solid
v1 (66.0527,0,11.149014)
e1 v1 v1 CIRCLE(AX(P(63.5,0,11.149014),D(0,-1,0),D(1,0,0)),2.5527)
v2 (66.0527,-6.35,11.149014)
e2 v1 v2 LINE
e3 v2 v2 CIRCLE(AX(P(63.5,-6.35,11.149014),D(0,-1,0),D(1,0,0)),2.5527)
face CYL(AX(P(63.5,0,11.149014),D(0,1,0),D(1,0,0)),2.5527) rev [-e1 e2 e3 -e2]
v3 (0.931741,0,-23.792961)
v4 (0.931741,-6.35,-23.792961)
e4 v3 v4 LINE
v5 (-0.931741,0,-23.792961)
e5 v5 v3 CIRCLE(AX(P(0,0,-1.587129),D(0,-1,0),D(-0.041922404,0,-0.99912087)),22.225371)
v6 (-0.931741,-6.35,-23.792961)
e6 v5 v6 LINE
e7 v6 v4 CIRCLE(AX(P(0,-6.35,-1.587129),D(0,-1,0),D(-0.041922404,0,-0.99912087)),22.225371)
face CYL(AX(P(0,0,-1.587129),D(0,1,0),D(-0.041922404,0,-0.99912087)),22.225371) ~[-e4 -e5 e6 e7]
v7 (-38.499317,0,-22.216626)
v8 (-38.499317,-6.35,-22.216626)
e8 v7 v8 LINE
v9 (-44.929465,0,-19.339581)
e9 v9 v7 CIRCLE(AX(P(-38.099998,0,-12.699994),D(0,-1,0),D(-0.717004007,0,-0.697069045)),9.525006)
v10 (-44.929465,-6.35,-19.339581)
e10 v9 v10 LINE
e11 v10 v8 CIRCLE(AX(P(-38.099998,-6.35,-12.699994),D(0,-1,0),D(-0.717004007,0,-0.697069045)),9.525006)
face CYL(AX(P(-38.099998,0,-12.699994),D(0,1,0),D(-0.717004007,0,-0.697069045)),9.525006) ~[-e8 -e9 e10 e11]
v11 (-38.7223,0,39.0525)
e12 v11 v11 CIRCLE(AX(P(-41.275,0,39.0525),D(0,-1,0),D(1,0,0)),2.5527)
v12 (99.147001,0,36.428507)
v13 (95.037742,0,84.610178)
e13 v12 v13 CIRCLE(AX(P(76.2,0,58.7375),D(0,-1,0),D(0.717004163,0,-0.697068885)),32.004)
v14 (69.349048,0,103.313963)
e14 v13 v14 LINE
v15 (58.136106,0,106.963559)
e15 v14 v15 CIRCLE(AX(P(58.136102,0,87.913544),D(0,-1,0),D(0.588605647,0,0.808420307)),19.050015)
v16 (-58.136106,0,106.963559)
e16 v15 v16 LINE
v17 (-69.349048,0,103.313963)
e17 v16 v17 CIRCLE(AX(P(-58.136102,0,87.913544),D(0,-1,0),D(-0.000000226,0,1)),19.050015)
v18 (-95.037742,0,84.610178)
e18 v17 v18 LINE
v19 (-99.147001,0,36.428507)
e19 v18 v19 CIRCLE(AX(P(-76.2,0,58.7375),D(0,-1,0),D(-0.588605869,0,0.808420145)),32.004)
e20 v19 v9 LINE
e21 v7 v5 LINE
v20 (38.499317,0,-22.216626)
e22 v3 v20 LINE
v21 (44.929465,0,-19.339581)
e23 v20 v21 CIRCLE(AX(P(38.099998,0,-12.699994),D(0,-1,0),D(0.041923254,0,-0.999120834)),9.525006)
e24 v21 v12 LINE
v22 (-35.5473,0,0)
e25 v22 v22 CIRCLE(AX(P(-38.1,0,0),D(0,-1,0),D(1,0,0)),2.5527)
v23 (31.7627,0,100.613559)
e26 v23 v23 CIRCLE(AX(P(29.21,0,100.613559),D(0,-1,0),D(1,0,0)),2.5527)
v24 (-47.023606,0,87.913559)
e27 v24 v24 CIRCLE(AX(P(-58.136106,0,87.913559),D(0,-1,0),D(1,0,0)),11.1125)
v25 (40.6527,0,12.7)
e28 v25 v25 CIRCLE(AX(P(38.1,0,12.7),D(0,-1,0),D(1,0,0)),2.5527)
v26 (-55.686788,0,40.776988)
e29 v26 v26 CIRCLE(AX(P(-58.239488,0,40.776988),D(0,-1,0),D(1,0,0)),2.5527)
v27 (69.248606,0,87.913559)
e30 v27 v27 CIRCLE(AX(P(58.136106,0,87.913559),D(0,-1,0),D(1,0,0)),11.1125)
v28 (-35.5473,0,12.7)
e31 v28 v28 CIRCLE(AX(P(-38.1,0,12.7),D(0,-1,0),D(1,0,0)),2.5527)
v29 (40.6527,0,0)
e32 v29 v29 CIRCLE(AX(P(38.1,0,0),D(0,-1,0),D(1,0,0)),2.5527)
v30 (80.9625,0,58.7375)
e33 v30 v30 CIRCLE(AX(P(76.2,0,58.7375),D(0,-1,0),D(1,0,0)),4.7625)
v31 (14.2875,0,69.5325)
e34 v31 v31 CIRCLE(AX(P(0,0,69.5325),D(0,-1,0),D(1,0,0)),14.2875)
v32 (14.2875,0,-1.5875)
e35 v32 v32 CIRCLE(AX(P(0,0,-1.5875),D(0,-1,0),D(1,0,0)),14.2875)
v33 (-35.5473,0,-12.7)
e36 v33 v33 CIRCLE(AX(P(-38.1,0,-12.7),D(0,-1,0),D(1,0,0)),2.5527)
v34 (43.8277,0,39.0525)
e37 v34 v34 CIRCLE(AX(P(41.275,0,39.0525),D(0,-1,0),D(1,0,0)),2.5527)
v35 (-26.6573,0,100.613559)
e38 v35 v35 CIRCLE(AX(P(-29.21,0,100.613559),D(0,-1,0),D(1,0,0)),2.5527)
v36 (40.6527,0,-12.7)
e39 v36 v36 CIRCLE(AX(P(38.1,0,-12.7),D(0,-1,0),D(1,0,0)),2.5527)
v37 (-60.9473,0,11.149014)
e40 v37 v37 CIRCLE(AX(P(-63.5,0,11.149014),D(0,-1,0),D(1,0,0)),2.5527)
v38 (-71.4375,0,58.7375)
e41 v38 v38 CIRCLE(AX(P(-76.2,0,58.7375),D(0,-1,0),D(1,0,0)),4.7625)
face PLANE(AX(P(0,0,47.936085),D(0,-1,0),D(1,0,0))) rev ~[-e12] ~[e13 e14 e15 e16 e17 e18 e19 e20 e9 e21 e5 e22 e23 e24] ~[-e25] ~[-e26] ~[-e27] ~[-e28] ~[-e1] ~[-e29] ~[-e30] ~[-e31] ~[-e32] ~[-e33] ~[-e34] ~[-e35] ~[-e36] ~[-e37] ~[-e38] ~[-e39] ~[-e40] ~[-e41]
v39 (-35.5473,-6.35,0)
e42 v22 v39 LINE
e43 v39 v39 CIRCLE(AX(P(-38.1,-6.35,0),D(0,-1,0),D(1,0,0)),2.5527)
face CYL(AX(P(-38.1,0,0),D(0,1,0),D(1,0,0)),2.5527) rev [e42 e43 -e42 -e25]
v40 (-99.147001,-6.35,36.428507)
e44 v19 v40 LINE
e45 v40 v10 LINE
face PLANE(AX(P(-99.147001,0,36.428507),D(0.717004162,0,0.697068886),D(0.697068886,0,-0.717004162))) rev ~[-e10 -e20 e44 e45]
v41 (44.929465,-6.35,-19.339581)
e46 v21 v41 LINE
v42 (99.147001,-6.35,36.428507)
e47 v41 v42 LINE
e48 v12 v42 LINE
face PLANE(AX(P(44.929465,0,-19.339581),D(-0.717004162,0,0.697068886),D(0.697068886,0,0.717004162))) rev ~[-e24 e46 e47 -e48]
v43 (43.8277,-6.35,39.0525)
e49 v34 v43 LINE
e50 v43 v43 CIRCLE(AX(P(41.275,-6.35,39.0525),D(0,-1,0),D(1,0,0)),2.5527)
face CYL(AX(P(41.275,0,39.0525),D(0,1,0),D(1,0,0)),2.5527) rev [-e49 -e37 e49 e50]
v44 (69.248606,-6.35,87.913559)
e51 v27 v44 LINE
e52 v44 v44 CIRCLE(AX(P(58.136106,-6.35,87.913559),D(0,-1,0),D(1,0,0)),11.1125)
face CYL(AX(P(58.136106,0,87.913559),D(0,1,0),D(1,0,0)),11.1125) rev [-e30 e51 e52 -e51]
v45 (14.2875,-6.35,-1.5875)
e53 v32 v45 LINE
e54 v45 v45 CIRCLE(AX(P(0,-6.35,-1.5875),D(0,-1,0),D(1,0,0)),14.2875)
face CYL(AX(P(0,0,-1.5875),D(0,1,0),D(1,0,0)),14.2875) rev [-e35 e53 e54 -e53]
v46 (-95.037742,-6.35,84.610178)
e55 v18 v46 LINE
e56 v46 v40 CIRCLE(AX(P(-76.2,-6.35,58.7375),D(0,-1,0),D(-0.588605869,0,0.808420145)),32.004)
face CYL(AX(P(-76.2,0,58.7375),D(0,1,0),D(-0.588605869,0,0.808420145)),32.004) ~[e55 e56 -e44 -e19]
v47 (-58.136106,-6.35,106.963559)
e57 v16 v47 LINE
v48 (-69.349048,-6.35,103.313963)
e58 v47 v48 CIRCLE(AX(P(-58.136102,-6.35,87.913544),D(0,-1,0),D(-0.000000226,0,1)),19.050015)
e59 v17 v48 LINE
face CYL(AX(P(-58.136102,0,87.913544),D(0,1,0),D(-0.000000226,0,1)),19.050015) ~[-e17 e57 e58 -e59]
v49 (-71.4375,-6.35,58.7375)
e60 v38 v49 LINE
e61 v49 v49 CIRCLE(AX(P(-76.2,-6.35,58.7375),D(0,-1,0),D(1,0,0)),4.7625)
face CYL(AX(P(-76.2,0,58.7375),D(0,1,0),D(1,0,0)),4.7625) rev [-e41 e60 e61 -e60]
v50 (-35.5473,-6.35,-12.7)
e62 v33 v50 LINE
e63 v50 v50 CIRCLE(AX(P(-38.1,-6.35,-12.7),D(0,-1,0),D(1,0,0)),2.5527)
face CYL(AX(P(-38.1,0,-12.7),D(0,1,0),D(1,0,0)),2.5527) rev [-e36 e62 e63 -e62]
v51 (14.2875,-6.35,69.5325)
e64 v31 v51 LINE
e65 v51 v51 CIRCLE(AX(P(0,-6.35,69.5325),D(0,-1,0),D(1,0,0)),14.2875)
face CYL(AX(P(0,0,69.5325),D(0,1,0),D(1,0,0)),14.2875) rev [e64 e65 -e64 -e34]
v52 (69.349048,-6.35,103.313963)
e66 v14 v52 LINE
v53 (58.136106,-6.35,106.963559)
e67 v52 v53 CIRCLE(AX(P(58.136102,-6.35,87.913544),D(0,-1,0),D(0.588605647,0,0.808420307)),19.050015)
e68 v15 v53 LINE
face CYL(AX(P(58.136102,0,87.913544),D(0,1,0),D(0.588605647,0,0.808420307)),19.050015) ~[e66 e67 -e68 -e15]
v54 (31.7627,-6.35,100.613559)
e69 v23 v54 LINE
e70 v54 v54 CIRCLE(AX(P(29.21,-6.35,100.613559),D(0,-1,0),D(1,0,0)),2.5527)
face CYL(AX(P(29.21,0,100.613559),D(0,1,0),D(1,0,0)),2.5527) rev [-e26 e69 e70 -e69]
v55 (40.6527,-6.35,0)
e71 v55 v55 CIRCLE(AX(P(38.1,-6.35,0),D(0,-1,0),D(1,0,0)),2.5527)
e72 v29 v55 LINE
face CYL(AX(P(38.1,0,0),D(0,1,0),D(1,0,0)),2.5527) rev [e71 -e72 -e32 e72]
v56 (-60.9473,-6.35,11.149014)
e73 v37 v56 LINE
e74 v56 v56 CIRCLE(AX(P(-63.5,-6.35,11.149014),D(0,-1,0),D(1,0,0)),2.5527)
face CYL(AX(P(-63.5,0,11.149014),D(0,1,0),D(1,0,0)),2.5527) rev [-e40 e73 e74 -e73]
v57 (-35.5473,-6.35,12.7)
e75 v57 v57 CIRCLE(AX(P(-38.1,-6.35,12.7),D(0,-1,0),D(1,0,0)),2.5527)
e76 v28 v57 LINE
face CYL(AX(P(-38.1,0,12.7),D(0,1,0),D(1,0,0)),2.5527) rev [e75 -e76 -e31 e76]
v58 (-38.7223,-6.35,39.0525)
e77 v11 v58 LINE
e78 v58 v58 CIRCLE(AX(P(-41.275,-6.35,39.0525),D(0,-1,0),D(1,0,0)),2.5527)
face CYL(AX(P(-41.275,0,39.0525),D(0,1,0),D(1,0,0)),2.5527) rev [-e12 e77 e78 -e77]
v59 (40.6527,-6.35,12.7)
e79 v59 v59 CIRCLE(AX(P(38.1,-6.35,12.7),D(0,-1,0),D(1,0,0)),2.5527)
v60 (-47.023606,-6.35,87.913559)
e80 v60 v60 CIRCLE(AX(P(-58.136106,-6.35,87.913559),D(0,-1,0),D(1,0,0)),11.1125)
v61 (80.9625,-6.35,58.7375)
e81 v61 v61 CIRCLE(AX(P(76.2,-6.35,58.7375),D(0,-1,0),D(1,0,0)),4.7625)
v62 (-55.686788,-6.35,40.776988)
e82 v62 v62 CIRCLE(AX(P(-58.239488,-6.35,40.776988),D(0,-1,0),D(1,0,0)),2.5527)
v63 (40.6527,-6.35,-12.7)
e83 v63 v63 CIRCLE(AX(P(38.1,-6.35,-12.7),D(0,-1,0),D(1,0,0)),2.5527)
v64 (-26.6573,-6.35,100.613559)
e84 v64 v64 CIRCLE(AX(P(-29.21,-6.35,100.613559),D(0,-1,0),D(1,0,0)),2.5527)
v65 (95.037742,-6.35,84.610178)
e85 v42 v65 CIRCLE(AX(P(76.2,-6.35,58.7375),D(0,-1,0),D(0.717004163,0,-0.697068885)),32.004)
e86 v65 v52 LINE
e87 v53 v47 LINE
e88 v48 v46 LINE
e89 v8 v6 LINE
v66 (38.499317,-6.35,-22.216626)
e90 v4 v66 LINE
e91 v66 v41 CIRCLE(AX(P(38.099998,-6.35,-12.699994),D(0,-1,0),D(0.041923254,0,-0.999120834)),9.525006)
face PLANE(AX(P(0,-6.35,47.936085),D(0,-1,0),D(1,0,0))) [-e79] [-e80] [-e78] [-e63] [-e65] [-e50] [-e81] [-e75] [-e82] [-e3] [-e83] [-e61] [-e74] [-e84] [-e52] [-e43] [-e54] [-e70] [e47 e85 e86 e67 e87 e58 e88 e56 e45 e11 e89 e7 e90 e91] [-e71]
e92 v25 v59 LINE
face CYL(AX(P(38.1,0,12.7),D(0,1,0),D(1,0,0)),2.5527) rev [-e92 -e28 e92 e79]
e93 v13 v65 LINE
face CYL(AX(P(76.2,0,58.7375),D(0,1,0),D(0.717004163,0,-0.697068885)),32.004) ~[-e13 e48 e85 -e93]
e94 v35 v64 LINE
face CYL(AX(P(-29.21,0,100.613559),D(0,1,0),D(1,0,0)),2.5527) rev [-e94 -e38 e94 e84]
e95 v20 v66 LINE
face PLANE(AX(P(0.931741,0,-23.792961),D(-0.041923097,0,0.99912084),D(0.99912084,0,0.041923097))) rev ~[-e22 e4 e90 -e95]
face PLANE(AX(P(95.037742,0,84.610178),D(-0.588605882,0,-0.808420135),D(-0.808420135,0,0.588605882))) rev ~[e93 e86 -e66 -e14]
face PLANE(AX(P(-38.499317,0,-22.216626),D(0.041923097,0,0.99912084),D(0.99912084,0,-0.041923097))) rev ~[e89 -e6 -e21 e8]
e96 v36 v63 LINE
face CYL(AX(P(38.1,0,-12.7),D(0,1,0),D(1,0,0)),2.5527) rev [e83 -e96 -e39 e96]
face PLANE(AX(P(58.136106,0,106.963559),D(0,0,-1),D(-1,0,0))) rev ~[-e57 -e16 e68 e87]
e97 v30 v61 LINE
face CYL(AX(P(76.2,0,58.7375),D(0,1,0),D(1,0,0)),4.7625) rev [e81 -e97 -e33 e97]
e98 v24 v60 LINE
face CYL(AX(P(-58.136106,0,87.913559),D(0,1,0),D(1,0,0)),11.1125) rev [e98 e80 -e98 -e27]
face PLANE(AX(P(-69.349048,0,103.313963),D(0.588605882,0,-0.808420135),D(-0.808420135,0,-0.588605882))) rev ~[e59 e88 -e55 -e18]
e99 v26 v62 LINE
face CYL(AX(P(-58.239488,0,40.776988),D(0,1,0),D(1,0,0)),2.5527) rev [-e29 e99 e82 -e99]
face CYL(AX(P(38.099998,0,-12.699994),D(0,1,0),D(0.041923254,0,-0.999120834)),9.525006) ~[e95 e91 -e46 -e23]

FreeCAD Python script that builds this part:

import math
import FreeCAD as App
import Part
import Sketcher
from FreeCAD import Vector
Q = App.Units.Quantity

doc = App.newDocument("Part")
body = doc.addObject("PartDesign::Body", "Body")

# Sketch on XZ plane
sketch1 = body.newObject("Sketcher::SketchObject", "Sketch")
sketch1.AttachmentSupport = (doc.getObject("XZ_Plane"), [""])
sketch1.MapMode = "FlatFace"
sketch1.addGeometry(Part.LineSegment(Vector(-99.1, 36.4, 0), Vector(-44.9, -19.3, 0)), False)
sketch1.addGeometry(Part.ArcOfCircle(Part.Circle(Vector(-38.1, -12.7, 0), Vector(0, 0, 1), 9.5), math.radians(-136), math.radians(-92)), False)
sketch1.addGeometry(Part.LineSegment(Vector(-38.5, -22.2, 0), Vector(-0.9, -23.8, 0)), False)
sketch1.addGeometry(Part.ArcOfCircle(Part.Circle(Vector(0, -1.6, 0), Vector(0, 0, 1), 22.2), math.radians(-92.4), math.radians(-87.6)), False)
sketch1.addGeometry(Part.LineSegment(Vector(0.9, -23.8, 0), Vector(38.5, -22.2, 0)), False)
sketch1.addGeometry(Part.ArcOfCircle(Part.Circle(Vector(38.1, -12.7, 0), Vector(0, 0, 1), 9.5), math.radians(-88), math.radians(-44)), False)
sketch1.addGeometry(Part.LineSegment(Vector(44.9, -19.3, 0), Vector(99.1, 36.4, 0)), False)
sketch1.addGeometry(Part.ArcOfCircle(Part.Circle(Vector(76.2, 58.7, 0), Vector(0, 0, 1), 32), math.radians(-44), math.radians(54)), False)
sketch1.addGeometry(Part.LineSegment(Vector(95, 84.6, 0), Vector(69.3, 103.3, 0)), False)
sketch1.addGeometry(Part.ArcOfCircle(Part.Circle(Vector(58.1, 87.9, 0), Vector(0, 0, 1), 19.1), math.radians(54), math.radians(90)), False)
sketch1.addGeometry(Part.LineSegment(Vector(58.1, 107, 0), Vector(-58.1, 107, 0)), False)
sketch1.addGeometry(Part.ArcOfCircle(Part.Circle(Vector(-58.1, 87.9, 0), Vector(0, 0, 1), 19.1), math.radians(90), math.radians(126)), False)
sketch1.addGeometry(Part.LineSegment(Vector(-69.3, 103.3, 0), Vector(-95, 84.6, 0)), False)
sketch1.addGeometry(Part.ArcOfCircle(Part.Circle(Vector(-76.2, 58.7, 0), Vector(0, 0, 1), 32), math.radians(126), math.radians(224)), False)
sketch1.addGeometry(Part.Circle(Vector(-63.5, 11.1, 0), Vector(0, 0, 1), 2.6), False)
sketch1.addGeometry(Part.Circle(Vector(-38.1, -12.7, 0), Vector(0, 0, 1), 2.6), False)
sketch1.addGeometry(Part.Circle(Vector(-38.1, 0, 0), Vector(0, 0, 1), 2.6), False)
sketch1.addGeometry(Part.Circle(Vector(-38.1, 12.7, 0), Vector(0, 0, 1), 2.6), False)
sketch1.addGeometry(Part.Circle(Vector(-58.2, 40.8, 0), Vector(0, 0, 1), 2.6), False)
sketch1.addGeometry(Part.Circle(Vector(-41.3, 39.1, 0), Vector(0, 0, 1), 2.6), False)
sketch1.addGeometry(Part.Circle(Vector(0, -1.6, 0), Vector(0, 0, 1), 14.3), False)
sketch1.addGeometry(Part.Circle(Vector(38.1, -12.7, 0), Vector(0, 0, 1), 2.6), False)
sketch1.addGeometry(Part.Circle(Vector(38.1, 0, 0), Vector(0, 0, 1), 2.6), False)
sketch1.addGeometry(Part.Circle(Vector(38.1, 12.7, 0), Vector(0, 0, 1), 2.6), False)
sketch1.addGeometry(Part.Circle(Vector(63.5, 11.1, 0), Vector(0, 0, 1), 2.6), False)
sketch1.addGeometry(Part.Circle(Vector(41.3, 39.1, 0), Vector(0, 0, 1), 2.6), False)
sketch1.addGeometry(Part.Circle(Vector(-76.2, 58.7, 0), Vector(0, 0, 1), 4.8), False)
sketch1.addGeometry(Part.Circle(Vector(-58.1, 87.9, 0), Vector(0, 0, 1), 11.1), False)
sketch1.addGeometry(Part.Circle(Vector(-29.2, 100.6, 0), Vector(0, 0, 1), 2.6), False)
sketch1.addGeometry(Part.Circle(Vector(0, 69.5, 0), Vector(0, 0, 1), 14.3), False)
sketch1.addGeometry(Part.Circle(Vector(76.2, 58.7, 0), Vector(0, 0, 1), 4.8), False)
sketch1.addGeometry(Part.Circle(Vector(29.2, 100.6, 0), Vector(0, 0, 1), 2.6), False)
sketch1.addGeometry(Part.Circle(Vector(58.1, 87.9, 0), Vector(0, 0, 1), 11.1), False)
sketch1.addConstraint(Sketcher.Constraint("Tangent", 0, 2, 1, 1))
sketch1.addConstraint(Sketcher.Constraint("Tangent", 1, 2, 2, 1))
sketch1.addConstraint(Sketcher.Constraint("Tangent", 2, 2, 3, 1))
sketch1.addConstraint(Sketcher.Constraint("Tangent", 3, 2, 4, 1))
sketch1.addConstraint(Sketcher.Constraint("Tangent", 4, 2, 5, 1))
sketch1.addConstraint(Sketcher.Constraint("Tangent", 5, 2, 6, 1))
sketch1.addConstraint(Sketcher.Constraint("Tangent", 6, 2, 7, 1))
sketch1.addConstraint(Sketcher.Constraint("Tangent", 7, 2, 8, 1))
sketch1.addConstraint(Sketcher.Constraint("Tangent", 8, 2, 9, 1))
sketch1.addConstraint(Sketcher.Constraint("Tangent", 9, 2, 10, 1))
sketch1.addConstraint(Sketcher.Constraint("Tangent", 10, 2, 11, 1))
sketch1.addConstraint(Sketcher.Constraint("Tangent", 11, 2, 12, 1))
sketch1.addConstraint(Sketcher.Constraint("Tangent", 12, 2, 13, 1))
sketch1.addConstraint(Sketcher.Constraint("Tangent", 13, 2, 0, 1))
sketch1.addConstraint(Sketcher.Constraint("Horizontal", 10))
sketch1.addConstraint(Sketcher.Constraint("Coincident", 15, 3, 1, 3))
sketch1.addConstraint(Sketcher.Constraint("Coincident", 21, 3, 5, 3))
sketch1.addConstraint(Sketcher.Constraint("Coincident", 26, 3, 13, 3))
sketch1.addConstraint(Sketcher.Constraint("Coincident", 30, 3, 7, 3))
sketch1.addConstraint(Sketcher.Constraint("Equal", 1, 5))
sketch1.addConstraint(Sketcher.Constraint("Equal", 9, 11))
sketch1.addConstraint(Sketcher.Constraint("Equal", 7, 13))
sketch1.addConstraint(Sketcher.Constraint("Equal", 14, 15))
sketch1.addConstraint(Sketcher.Constraint("Equal", 15, 16))
sketch1.addConstraint(Sketcher.Constraint("Equal", 16, 17))
sketch1.addConstraint(Sketcher.Constraint("Equal", 17, 18))
sketch1.addConstraint(Sketcher.Constraint("Equal", 18, 19))
sketch1.addConstraint(Sketcher.Constraint("Equal", 19, 21))
sketch1.addConstraint(Sketcher.Constraint("Equal", 21, 22))
sketch1.addConstraint(Sketcher.Constraint("Equal", 22, 23))
sketch1.addConstraint(Sketcher.Constraint("Equal", 23, 24))
sketch1.addConstraint(Sketcher.Constraint("Equal", 24, 25))
sketch1.addConstraint(Sketcher.Constraint("Equal", 25, 28))
sketch1.addConstraint(Sketcher.Constraint("Equal", 20, 29))
sketch1.addConstraint(Sketcher.Constraint("Equal", 26, 30))
sketch1.addConstraint(Sketcher.Constraint("Equal", 28, 31))
sketch1.addConstraint(Sketcher.Constraint("Equal", 27, 32))
sketch1.addConstraint(Sketcher.Constraint("Symmetric", 5, 3, 17, 3, -1, 1))
sketch1.addConstraint(Sketcher.Constraint("Symmetric", 16, 3, 22, 3, -1, 1))
sketch1.addConstraint(Sketcher.Constraint("Symmetric", 1, 3, 23, 3, -1, 1))
sketch1.addConstraint(Sketcher.Constraint("Symmetric", 1, 3, 5, 3, -2))
sketch1.addConstraint(Sketcher.Constraint("Symmetric", 7, 3, 13, 3, -2))
sketch1.addConstraint(Sketcher.Constraint("Symmetric", 14, 3, 24, 3, -2))
sketch1.addConstraint(Sketcher.Constraint("Symmetric", 19, 3, 25, 3, -2))
sketch1.addConstraint(Sketcher.Constraint("Symmetric", 28, 3, 31, 3, -2))
sketch1.addConstraint(Sketcher.Constraint("Symmetric", 27, 3, 32, 3, -2))
sketch1.addConstraint(Sketcher.Constraint("PointOnObject", 3, 3, -2))
sketch1.addConstraint(Sketcher.Constraint("PointOnObject", 16, 3, -1))
sketch1.addConstraint(Sketcher.Constraint("PointOnObject", 20, 3, -2))
sketch1.addConstraint(Sketcher.Constraint("PointOnObject", 29, 3, -2))
sketch1.addConstraint(Sketcher.Constraint("Horizontal", 8, 2, 11, 2))
sketch1.addConstraint(Sketcher.Constraint("Vertical", 15, 3, 16, 3))
sketch1.addConstraint(Sketcher.Constraint("Vertical", 32, 3, 9, 2))
sketch1.addConstraint(Sketcher.Constraint("Radius", 7, Q("1.26 in")))
sketch1.addConstraint(Sketcher.Constraint("Diameter", 14, Q("0.201 in")))
sketch1.addConstraint(Sketcher.Constraint("Diameter", 20, Q("1.125 in")))
sketch1.addConstraint(Sketcher.Constraint("Diameter", 26, Q("0.375 in")))
sketch1.addConstraint(Sketcher.Constraint("Diameter", 27, Q("0.875 in")))
sketch1.addConstraint(Sketcher.Constraint("DistanceX", -1, 1, 7, 3, Q("3 in")))
sketch1.addConstraint(Sketcher.Constraint("DistanceX", 1, 3, 5, 3, Q("2.9999998 in")))
sketch1.addConstraint(Sketcher.Constraint("DistanceX", 14, 3, 1, 3, Q("1.0000001 in")))
sketch1.addConstraint(Sketcher.Constraint("DistanceY", 15, 3, 17, 3, Q("1 in")))
sketch1.addConstraint(Sketcher.Constraint("DistanceY", 27, 3, 28, 3, Q("0.5 in")))
sketch1.addConstraint(Sketcher.Constraint("DistanceY", 19, 3, 29, 3, Q("1.2 in")))
sketch1.addConstraint(Sketcher.Constraint("DistanceX", 28, 3, 31, 3, Q("2.3 in")))
sketch1.addConstraint(Sketcher.Constraint("DistanceY", 32, 3, 9, 2, Q("0.75 in")))
sketch1.addConstraint(Sketcher.Constraint("DistanceY", -1, 1, 7, 3, Q("2.3125 in")))
sketch1.addConstraint(Sketcher.Constraint("DistanceX", 19, 3, -1, 1, Q("1.625 in")))
sketch1.addConstraint(Sketcher.Constraint("DistanceY", 20, 3, -1, 1, Q("0.0625 in")))
sketch1.addConstraint(Sketcher.Constraint("Radius", 3, 22.225371))
sketch1.addConstraint(Sketcher.Constraint("DistanceY", 19, 3, 13, 3, Q("0.775 in")))
sketch1.addConstraint(Sketcher.Constraint("Radius", 1, 9.525006))
sketch1.addConstraint(Sketcher.Constraint("Radius", 9, 19.050015))
sketch1.addConstraint(Sketcher.Constraint("DistanceY", 13, 2, 18, 3, Q("0.1712 in")))
sketch1.addConstraint(Sketcher.Constraint("DistanceX", 10, 2, 10, 1, 116.272212))
sketch1.addConstraint(Sketcher.Constraint("DistanceY", 3, 3, -1, 1, 1.587129))
sketch1.addConstraint(Sketcher.Constraint("DistanceY", -1, 1, 27, 3, 87.913559))
sketch1.addConstraint(Sketcher.Constraint("DistanceY", 1, 3, 14, 3, 23.849008))
sketch1.addConstraint(Sketcher.Constraint("DistanceX", 13, 3, 18, 3, 17.960512))
pad1 = body.newObject("PartDesign::Pad", "Pad")
pad1.Profile = sketch1
pad1.Length = Q("0.25 in")

doc.recompute()
